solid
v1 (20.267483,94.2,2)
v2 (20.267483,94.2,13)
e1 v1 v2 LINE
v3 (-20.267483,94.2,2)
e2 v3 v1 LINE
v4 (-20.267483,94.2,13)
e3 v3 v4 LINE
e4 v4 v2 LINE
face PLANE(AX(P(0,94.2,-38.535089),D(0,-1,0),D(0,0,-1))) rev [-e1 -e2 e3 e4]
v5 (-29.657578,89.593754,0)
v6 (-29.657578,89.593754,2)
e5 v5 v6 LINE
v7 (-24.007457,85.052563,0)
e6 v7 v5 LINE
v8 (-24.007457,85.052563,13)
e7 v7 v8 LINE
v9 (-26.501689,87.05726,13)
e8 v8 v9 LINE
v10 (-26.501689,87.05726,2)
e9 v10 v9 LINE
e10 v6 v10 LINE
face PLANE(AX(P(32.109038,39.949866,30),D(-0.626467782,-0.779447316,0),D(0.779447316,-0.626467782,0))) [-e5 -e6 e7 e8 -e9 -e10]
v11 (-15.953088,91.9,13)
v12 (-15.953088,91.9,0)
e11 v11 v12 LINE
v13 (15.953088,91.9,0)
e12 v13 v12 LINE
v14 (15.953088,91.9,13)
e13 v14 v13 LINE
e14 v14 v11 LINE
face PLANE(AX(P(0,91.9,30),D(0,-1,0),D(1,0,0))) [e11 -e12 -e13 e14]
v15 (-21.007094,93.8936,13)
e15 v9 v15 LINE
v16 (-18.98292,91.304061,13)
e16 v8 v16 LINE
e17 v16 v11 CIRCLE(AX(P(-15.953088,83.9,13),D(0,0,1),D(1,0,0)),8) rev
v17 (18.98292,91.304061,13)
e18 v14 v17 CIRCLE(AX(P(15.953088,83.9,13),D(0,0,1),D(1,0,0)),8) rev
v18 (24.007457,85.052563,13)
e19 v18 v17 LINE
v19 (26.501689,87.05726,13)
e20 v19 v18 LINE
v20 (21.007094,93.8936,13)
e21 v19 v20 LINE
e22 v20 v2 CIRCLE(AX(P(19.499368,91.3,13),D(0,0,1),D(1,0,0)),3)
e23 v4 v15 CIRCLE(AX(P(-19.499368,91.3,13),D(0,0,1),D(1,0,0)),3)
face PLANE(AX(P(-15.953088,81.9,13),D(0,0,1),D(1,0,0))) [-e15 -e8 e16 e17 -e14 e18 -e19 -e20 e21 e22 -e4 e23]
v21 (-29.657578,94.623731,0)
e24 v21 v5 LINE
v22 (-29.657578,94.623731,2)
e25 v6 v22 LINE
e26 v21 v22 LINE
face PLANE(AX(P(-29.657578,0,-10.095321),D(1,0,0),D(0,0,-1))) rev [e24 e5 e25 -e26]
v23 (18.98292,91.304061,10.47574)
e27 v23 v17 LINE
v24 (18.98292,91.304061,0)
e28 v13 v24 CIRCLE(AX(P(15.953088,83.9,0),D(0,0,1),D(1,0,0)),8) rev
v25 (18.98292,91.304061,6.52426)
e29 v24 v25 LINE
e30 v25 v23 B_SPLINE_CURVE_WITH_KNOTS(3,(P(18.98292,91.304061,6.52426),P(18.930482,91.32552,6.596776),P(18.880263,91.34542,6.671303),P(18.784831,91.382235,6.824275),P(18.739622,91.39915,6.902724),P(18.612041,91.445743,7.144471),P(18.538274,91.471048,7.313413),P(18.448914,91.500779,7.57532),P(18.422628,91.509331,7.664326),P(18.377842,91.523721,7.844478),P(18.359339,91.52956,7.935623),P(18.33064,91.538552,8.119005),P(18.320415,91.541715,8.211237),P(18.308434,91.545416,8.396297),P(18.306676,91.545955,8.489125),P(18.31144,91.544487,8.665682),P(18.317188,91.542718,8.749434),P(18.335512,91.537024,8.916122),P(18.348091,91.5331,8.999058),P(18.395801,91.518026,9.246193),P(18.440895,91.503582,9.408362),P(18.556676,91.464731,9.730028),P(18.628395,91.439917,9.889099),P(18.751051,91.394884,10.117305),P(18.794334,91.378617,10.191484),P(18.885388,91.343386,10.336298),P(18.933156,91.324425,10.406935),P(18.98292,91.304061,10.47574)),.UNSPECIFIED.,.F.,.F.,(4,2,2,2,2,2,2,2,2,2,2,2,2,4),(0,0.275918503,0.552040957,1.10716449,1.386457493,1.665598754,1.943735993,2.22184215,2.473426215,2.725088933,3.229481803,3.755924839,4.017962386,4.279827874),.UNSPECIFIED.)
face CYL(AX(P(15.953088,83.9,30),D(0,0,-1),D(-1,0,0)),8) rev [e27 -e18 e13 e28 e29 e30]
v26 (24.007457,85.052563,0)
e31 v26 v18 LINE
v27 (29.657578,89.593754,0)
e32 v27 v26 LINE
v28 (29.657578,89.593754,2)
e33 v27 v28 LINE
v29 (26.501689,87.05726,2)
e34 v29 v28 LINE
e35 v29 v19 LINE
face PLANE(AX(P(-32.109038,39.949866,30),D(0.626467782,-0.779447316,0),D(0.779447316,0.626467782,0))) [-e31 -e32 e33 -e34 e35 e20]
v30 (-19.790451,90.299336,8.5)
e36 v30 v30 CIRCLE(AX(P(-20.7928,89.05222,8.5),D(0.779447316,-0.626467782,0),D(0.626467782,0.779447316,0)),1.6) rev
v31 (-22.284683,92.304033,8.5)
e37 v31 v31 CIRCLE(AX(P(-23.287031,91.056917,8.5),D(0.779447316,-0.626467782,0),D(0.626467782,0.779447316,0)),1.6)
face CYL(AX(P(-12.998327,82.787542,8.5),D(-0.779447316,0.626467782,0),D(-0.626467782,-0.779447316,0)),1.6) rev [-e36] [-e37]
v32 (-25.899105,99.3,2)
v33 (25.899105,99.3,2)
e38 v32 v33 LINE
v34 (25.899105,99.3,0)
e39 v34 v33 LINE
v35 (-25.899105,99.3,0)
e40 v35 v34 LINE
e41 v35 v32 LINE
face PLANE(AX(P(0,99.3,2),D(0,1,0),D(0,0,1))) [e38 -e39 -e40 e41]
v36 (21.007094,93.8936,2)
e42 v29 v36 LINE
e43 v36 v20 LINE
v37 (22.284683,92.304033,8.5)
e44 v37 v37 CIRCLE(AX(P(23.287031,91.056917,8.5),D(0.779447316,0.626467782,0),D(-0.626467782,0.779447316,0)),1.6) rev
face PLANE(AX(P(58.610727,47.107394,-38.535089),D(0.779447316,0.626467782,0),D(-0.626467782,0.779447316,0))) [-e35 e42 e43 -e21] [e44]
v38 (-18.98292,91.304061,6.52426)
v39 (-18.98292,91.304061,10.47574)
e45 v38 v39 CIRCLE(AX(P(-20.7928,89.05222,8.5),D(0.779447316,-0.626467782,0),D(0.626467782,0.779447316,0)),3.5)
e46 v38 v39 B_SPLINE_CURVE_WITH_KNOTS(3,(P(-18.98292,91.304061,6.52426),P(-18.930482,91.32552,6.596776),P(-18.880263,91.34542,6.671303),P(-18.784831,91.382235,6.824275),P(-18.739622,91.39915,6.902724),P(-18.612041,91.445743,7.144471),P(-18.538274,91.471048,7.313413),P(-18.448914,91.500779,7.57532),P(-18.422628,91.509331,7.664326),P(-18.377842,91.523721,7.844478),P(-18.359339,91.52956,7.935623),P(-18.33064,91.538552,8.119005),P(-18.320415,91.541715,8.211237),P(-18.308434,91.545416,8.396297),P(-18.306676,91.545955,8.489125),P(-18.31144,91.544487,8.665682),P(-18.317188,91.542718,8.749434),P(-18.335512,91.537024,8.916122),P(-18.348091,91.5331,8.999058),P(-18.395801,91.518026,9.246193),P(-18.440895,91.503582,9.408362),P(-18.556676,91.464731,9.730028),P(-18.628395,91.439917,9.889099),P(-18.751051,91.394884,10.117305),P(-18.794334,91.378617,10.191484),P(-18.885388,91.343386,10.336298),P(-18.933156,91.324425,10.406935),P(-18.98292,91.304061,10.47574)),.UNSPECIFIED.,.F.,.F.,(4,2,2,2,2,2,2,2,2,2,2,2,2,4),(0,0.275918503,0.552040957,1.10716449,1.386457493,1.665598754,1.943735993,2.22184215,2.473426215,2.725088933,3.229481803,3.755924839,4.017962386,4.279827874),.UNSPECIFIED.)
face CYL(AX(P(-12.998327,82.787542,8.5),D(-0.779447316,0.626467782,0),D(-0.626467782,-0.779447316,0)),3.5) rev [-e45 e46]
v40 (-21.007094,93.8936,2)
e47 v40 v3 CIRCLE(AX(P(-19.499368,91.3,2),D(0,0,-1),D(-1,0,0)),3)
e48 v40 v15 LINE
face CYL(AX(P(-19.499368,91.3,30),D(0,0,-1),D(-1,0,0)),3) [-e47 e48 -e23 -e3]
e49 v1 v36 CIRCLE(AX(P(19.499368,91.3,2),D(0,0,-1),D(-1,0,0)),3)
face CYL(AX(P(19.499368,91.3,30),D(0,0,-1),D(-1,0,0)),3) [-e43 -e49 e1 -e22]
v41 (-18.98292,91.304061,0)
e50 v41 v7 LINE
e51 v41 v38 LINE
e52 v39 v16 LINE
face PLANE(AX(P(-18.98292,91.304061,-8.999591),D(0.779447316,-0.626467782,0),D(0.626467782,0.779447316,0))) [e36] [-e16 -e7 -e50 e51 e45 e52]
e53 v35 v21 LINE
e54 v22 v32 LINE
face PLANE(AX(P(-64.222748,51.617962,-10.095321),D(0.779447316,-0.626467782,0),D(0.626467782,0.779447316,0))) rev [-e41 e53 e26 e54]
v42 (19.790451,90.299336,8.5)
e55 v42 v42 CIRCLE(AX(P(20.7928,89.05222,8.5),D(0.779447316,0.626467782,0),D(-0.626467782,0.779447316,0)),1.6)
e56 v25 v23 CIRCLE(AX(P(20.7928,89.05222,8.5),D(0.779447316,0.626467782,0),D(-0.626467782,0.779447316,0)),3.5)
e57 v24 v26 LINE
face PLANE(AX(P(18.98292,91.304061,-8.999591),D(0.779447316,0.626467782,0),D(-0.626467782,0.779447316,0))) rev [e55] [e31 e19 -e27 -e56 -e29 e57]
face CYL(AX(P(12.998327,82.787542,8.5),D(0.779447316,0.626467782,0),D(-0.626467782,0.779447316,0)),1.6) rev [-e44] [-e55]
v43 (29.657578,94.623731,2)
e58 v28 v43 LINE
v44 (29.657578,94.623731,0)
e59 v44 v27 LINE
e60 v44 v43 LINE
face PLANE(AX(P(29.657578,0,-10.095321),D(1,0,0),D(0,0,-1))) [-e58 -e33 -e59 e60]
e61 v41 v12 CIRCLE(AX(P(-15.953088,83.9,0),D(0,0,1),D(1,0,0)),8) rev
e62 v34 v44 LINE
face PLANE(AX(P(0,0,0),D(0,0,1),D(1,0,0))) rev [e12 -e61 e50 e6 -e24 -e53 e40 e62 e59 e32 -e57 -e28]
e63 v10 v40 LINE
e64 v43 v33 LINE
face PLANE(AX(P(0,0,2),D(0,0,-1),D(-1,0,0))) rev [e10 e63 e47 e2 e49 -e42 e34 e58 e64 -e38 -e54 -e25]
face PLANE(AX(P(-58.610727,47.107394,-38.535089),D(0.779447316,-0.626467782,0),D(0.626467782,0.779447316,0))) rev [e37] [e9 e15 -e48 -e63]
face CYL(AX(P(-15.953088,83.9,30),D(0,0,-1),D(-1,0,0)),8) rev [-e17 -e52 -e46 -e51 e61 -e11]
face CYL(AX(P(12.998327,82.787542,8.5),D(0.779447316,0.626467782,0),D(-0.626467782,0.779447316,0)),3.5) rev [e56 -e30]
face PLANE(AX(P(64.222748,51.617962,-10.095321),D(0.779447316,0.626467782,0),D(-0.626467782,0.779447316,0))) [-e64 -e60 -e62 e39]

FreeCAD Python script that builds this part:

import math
import FreeCAD as App
import Part
import Sketcher

V = App.Vector
Q = App.Units.Quantity


def edges_at(feature, points):
    """Names of the edges that pass closest to the given points."""
    edges = feature.Shape.Edges
    near = lambda p: min(range(len(edges)), key=lambda i: edges[i].distToShape(Part.Vertex(*p))[0])
    return sorted({f"Edge{near(p) + 1}" for p in points})

doc = App.newDocument("Part")
body = doc.addObject("PartDesign::Body", "Body")

# Sketch on XY plane
sketch1 = body.newObject("Sketcher::SketchObject", "Sketch")
sketch1.AttachmentSupport = (doc.getObject("XY_Plane"), [""])
sketch1.MapMode = "FlatFace"
sketch1.addGeometry([
    Part.LineSegment(V(-20.9, 94.3, 0), V(-26.7, 87.2, 0)),  # 0
    Part.LineSegment(V(-26.7, 87.2, 0), V(-24.8, 85.7, 0)),  # 1
    Part.LineSegment(V(-24.8, 85.7, 0), V(-22.2, 88.9, 0)),  # 2
    Part.ArcOfCircle(Part.Circle(V(-16, 83.9, 0), V(0, 0, 1), 8), math.radians(90), math.radians(141)),  # 3
    Part.LineSegment(V(-16, 91.9, 0), V(16, 91.9, 0)),  # 4
    Part.ArcOfCircle(Part.Circle(V(16, 83.9, 0), V(0, 0, 1), 8), math.radians(39), math.radians(90)),  # 5
    Part.LineSegment(V(22.2, 88.9, 0), V(24.8, 85.7, 0)),  # 6
    Part.LineSegment(V(24.8, 85.7, 0), V(26.7, 87.2, 0)),  # 7
    Part.LineSegment(V(26.7, 87.2, 0), V(20.9, 94.3, 0)),  # 8
    Part.LineSegment(V(20.9, 94.3, 0), V(-20.9, 94.3, 0)),  # 9
], False)
sketch1.addConstraint([
    Sketcher.Constraint("Coincident", 0, 2, 1, 1),
    Sketcher.Constraint("Coincident", 1, 2, 2, 1),
    Sketcher.Constraint("Tangent", 2, 2, 3, 2),
    Sketcher.Constraint("Tangent", 3, 1, 4, 1),
    Sketcher.Constraint("Tangent", 4, 2, 5, 2),
    Sketcher.Constraint("Tangent", 5, 1, 6, 1),
    Sketcher.Constraint("Coincident", 6, 2, 7, 1),
    Sketcher.Constraint("Coincident", 7, 2, 8, 1),
    Sketcher.Constraint("Coincident", 8, 2, 9, 1),
    Sketcher.Constraint("Coincident", 9, 2, 0, 1),
    Sketcher.Constraint("Horizontal", 4),
    Sketcher.Constraint("Horizontal", 9),
    Sketcher.Constraint("Equal", 3, 5),
    Sketcher.Constraint("Symmetric", 2, 2, 5, 1, -2),
    Sketcher.Constraint("Symmetric", 0, 2, 7, 2, -2),
    Sketcher.Constraint("Perpendicular", 0, 1),
    Sketcher.Constraint("Perpendicular", 1, 2),
    Sketcher.Constraint("Perpendicular", 6, 7),
    Sketcher.Constraint("Perpendicular", 7, 8),
    Sketcher.Constraint("Radius", 3, 8.0),
    Sketcher.Constraint("Distance", 1, 2.4),
    Sketcher.Constraint("DistanceY", -1, 1, 3, 3, 83.9),
    Sketcher.Constraint("DistanceY", -1, 1, 8, 2, 94.3),
    Sketcher.Constraint("Angle", 0, Q("-128.79 deg")),
    Sketcher.Constraint("DistanceX", 9, 2, 9, 1, 41.874099),
    Sketcher.Constraint("Distance", 0, 9.131401),
])
pad1 = body.newObject("PartDesign::Pad", "Pad")
pad1.Profile = sketch1
pad1.Length = 30

# Sketch on XY plane
sketch2 = body.newObject("Sketcher::SketchObject", "Sketch001")
sketch2.AttachmentSupport = (doc.getObject("XY_Plane"), [""])
sketch2.MapMode = "FlatFace"
sketch2.addGeometry([
    Part.LineSegment(V(-21, 94, 0), V(-27, 87, 0)),  # 0
    Part.LineSegment(V(-27, 87, 0), V(-27, 95, 0)),  # 1
    Part.LineSegment(V(-27, 95, 0), V(-23, 99, 0)),  # 2
    Part.LineSegment(V(-23, 99, 0), V(23, 99, 0)),  # 3
    Part.LineSegment(V(23, 99, 0), V(27, 95, 0)),  # 4
    Part.LineSegment(V(27, 95, 0), V(27, 87, 0)),  # 5
    Part.LineSegment(V(27, 87, 0), V(21, 94, 0)),  # 6
    Part.LineSegment(V(21, 94, 0), V(-21, 94, 0)),  # 7
], False)
sketch2.addConstraint([
    Sketcher.Constraint("Coincident", 0, 2, 1, 1),
    Sketcher.Constraint("Coincident", 1, 2, 2, 1),
    Sketcher.Constraint("Coincident", 2, 2, 3, 1),
    Sketcher.Constraint("Coincident", 3, 2, 4, 1),
    Sketcher.Constraint("Coincident", 4, 2, 5, 1),
    Sketcher.Constraint("Coincident", 5, 2, 6, 1),
    Sketcher.Constraint("Coincident", 6, 2, 7, 1),
    Sketcher.Constraint("Coincident", 7, 2, 0, 1),
    Sketcher.Constraint("Vertical", 1),
    Sketcher.Constraint("Horizontal", 3),
    Sketcher.Constraint("Vertical", 5),
    Sketcher.Constraint("Horizontal", 7),
    Sketcher.Constraint("Symmetric", 1, 2, 4, 2, -2),
    Sketcher.Constraint("Parallel", 0, 2),
    Sketcher.Constraint("Parallel", 4, 6),
    Sketcher.Constraint("Horizontal", 0, 2, 5, 2),
    Sketcher.Constraint("Equal", 2, 4),
    Sketcher.Constraint("DistanceY", 6, 2, 3, 2, 5.0),
    Sketcher.Constraint("DistanceY", -1, 1, 2, 2, 99.3),
    Sketcher.Constraint("Angle", 0, Q("-128.79 deg")),
    Sketcher.Constraint("DistanceX", 7, 2, 7, 1, 41.874099),
    Sketcher.Constraint("Distance", 0, 9.131401),
    Sketcher.Constraint("DistanceX", 3, 1, 3, 2, 46.666369),
])
pad2 = body.newObject("PartDesign::Pad", "Pad001")
pad2.Profile = sketch2
pad2.Length = 2

# Sketch on XZ plane
sketch3 = body.newObject("Sketcher::SketchObject", "Sketch002")
sketch3.AttachmentSupport = (doc.getObject("XZ_Plane"), [""])
sketch3.MapMode = "FlatFace"
sketch3.AttachmentOffset = App.Placement(V(0, 0, -91.9), App.Rotation())
sketch3.addGeometry([
    Part.LineSegment(V(27, 13, 0), V(27, 30, 0)),
    Part.LineSegment(V(27, 30, 0), V(-27, 30, 0)),
    Part.LineSegment(V(-27, 30, 0), V(-27, 13, 0)),
    Part.LineSegment(V(-27, 13, 0), V(27, 13, 0)),
], False)
sketch3.addConstraint([
    Sketcher.Constraint("Coincident", 0, 2, 1, 1),
    Sketcher.Constraint("Coincident", 1, 2, 2, 1),
    Sketcher.Constraint("Coincident", 2, 2, 3, 1),
    Sketcher.Constraint("Coincident", 3, 2, 0, 1),
    Sketcher.Constraint("Vertical", 0),
    Sketcher.Constraint("Horizontal", 1),
    Sketcher.Constraint("Vertical", 2),
    Sketcher.Constraint("Horizontal", 3),
    Sketcher.Constraint("DistanceY", 0, 1, 0, 2, 17.0),
    Sketcher.Constraint("DistanceY", -1, 1, 0, 2, 30.0),
    Sketcher.Constraint("DistanceX", 1, 2, 1, 1, 53.315156),
    Sketcher.Constraint("DistanceX", -1, 1, 0, 2, 26.657578),
])
pocket1 = body.newObject("PartDesign::Pocket", "Pocket")
pocket1.Profile = sketch3
pocket1.Type = "ThroughAll"
pocket1.Midplane = True

# Sketch on XY plane
sketch4 = body.newObject("Sketcher::SketchObject", "Sketch003")
sketch4.AttachmentSupport = (doc.getObject("XY_Plane"), [""])
sketch4.MapMode = "FlatFace"
sketch4.AttachmentOffset = App.Placement(V(0, 0, 13), App.Rotation())
sketch4.addGeometry([
    Part.LineSegment(V(-19.8, 91.9, 0), V(-24.8, 85.7, 0)),
    Part.LineSegment(V(-24.8, 85.7, 0), V(-24, 85.1, 0)),
    Part.LineSegment(V(-24, 85.1, 0), V(-19, 91.3, 0)),
    Part.LineSegment(V(-19, 91.3, 0), V(-19.8, 91.9, 0)),
], False)
sketch4.addConstraint([
    Sketcher.Constraint("Coincident", 0, 2, 1, 1),
    Sketcher.Constraint("Coincident", 1, 2, 2, 1),
    Sketcher.Constraint("Coincident", 2, 2, 3, 1),
    Sketcher.Constraint("Coincident", 3, 2, 0, 1),
    Sketcher.Constraint("Perpendicular", 0, 1),
    Sketcher.Constraint("Perpendicular", 1, 2),
    Sketcher.Constraint("Perpendicular", 2, 3),
    Sketcher.Constraint("Distance", 1, 1.0),
    Sketcher.Constraint("Angle", 0, Q("-128.79 deg")),
    Sketcher.Constraint("DistanceY", -1, 1, 0, 2, 85.679031),
    Sketcher.Constraint("DistanceX", 2, 2, -1, 1, 18.98292),
    Sketcher.Constraint("DistanceY", -1, 1, 2, 2, 91.304061),
])
pad3 = body.newObject("PartDesign::Pad", "Pad002")
pad3.Profile = sketch4
pad3.Length = 13
pad3.Reversed = True

# Sketch on an angled plane
sketch5 = body.newObject("Sketcher::SketchObject", "Sketch004")
sketch5.Placement = App.Placement(V(-56.116496, 45.102698, 0), App.Rotation(V(0, 0, -1), V(0.626467782, 0.779447316, 0), V(0.779447316, -0.626467782, 0), "ZXY"))
sketch5.addGeometry(Part.Circle(V(-8.5, 56.4, 0), V(0, 0, 1), 1.6), False)
sketch5.addConstraint([
    Sketcher.Constraint("Diameter", 0, 3.2),
    Sketcher.Constraint("DistanceX", 0, 3, -1, 1, 8.5),
    Sketcher.Constraint("DistanceY", -1, 1, 0, 3, 56.385495),
])
pocket2 = body.newObject("PartDesign::Pocket", "Pocket001")
pocket2.Profile = sketch5
pocket2.Length = 20
pocket2.Midplane = True

# Sketch on an angled plane
sketch6 = body.newObject("Sketcher::SketchObject", "Sketch005")
sketch6.Placement = App.Placement(V(-56.116496, 45.102698, 0), App.Rotation(V(0, 0, -1), V(0.626467782, 0.779447316, 0), V(0.779447316, -0.626467782, 0), "ZXY"))
sketch6.addGeometry(Part.Circle(V(-8.5, 56.4, 0), V(0, 0, 1), 3.5), False)
sketch6.addConstraint([
    Sketcher.Constraint("Diameter", 0, 7.0),
    Sketcher.Constraint("DistanceX", 0, 3, -1, 1, 8.5),
    Sketcher.Constraint("DistanceY", -1, 1, 0, 3, 56.385495),
])
pocket3 = body.newObject("PartDesign::Pocket", "Pocket002")
pocket3.Profile = sketch6
pocket3.Length = 10
pocket3.Reversed = True
doc.recompute()

mirrored = body.newObject("PartDesign::Mirrored", "Mirrored")
mirrored.Originals = [pad3, pocket2, pocket3]
mirrored.MirrorPlane = (doc.getObject("YZ_Plane"), [""])
body.Tip = mirrored
doc.recompute()

fillet = body.newObject("PartDesign::Fillet", "Fillet")
fillet.Base = (mirrored, edges_at(mirrored, [(-20.937, 94.3, 7.5), (20.937, 94.3, 7.5)]))
fillet.Radius = 3

# Sketch on XY plane
sketch7 = body.newObject("Sketcher::SketchObject", "Sketch006")
sketch7.AttachmentSupport = (doc.getObject("XY_Plane"), [""])
sketch7.MapMode = "FlatFace"
sketch7.AttachmentOffset = App.Placement(V(0, 0, 13), App.Rotation())
sketch7.addGeometry([
    Part.ArcOfCircle(Part.Circle(V(19.5, 91.3, 0), V(0, 0, 1), 3), math.radians(39), math.radians(60)),  # 0
    Part.LineSegment(V(21.01, 93.89, 0), V(26.5, 87.06, 0)),  # 1
    Part.LineSegment(V(26.5, 87.06, 0), V(26.66, 87.18, 0)),  # 2
    Part.LineSegment(V(26.66, 87.18, 0), V(21.84, 93.18, 0)),  # 3
    Part.LineSegment(V(-26.66, 87.18, 0), V(-26.5, 87.06, 0)),  # 4
    Part.LineSegment(V(-26.5, 87.06, 0), V(-21.01, 93.89, 0)),  # 5
    Part.ArcOfCircle(Part.Circle(V(-19.5, 91.3, 0), V(0, 0, 1), 3), math.radians(120), math.radians(141)),  # 6
    Part.LineSegment(V(-21.84, 93.18, 0), V(-26.66, 87.18, 0)),  # 7
    Part.ArcOfCircle(Part.Circle(V(-19.5, 91.3, 0), V(0, 0, 1), 3), math.radians(90), math.radians(104.84)),  # 8
    Part.LineSegment(V(-20.27, 94.2, 0), V(20.27, 94.2, 0)),  # 9
    Part.ArcOfCircle(Part.Circle(V(19.5, 91.3, 0), V(0, 0, 1), 3), math.radians(75.16), math.radians(90)),  # 10
    Part.LineSegment(V(19.5, 94.3, 0), V(-19.5, 94.3, 0)),  # 11
], False)
sketch7.addConstraint([
    Sketcher.Constraint("Coincident", 0, 2, 1, 1),
    Sketcher.Constraint("Coincident", 1, 2, 2, 1),
    Sketcher.Constraint("Coincident", 2, 2, 3, 1),
    Sketcher.Constraint("Tangent", 3, 2, 0, 1),
    Sketcher.Constraint("Coincident", 4, 2, 5, 1),
    Sketcher.Constraint("Coincident", 5, 2, 6, 1),
    Sketcher.Constraint("Tangent", 6, 2, 7, 1),
    Sketcher.Constraint("Coincident", 7, 2, 4, 1),
    Sketcher.Constraint("Coincident", 8, 2, 9, 1),
    Sketcher.Constraint("Coincident", 9, 2, 10, 1),
    Sketcher.Constraint("Tangent", 10, 2, 11, 1),
    Sketcher.Constraint("Tangent", 11, 2, 8, 1),
    Sketcher.Constraint("Horizontal", 9),
    Sketcher.Constraint("Horizontal", 11),
    Sketcher.Constraint("Coincident", 8, 3, 6, 3),
    Sketcher.Constraint("Coincident", 10, 3, 0, 3),
    Sketcher.Constraint("Equal", 0, 6),
    Sketcher.Constraint("Equal", 6, 8),
    Sketcher.Constraint("Equal", 8, 10),
    Sketcher.Constraint("Symmetric", 1, 2, 4, 2, -2),
    Sketcher.Constraint("Symmetric", 0, 2, 5, 2, -2),
    Sketcher.Constraint("Symmetric", 2, 2, 7, 2, -2),
    Sketcher.Constraint("Perpendicular", 1, 2),
    Sketcher.Constraint("Perpendicular", 2, 3),
    Sketcher.Constraint("Radius", 0, 3.0),
    Sketcher.Constraint("Distance", 2, 0.2),
    Sketcher.Constraint("DistanceY", -1, 1, 0, 3, 91.3),
    Sketcher.Constraint("DistanceY", -1, 1, 8, 2, 94.2),
    Sketcher.Constraint("Angle", 1, Q("-51.21 deg")),
    Sketcher.Constraint("Distance", 3, 7.69372),
    Sketcher.Constraint("DistanceX", 9, 1, 9, 2, 40.534966),
])
pocket4 = body.newObject("PartDesign::Pocket", "Pocket003")
pocket4.Profile = sketch7
pocket4.Length = 11

# Sketch on XY plane
sketch8 = body.newObject("Sketcher::SketchObject", "Sketch007")
sketch8.AttachmentSupport = (doc.getObject("XY_Plane"), [""])
sketch8.MapMode = "FlatFace"
sketch8.AttachmentOffset = App.Placement(V(0, 0, 2), App.Rotation())
sketch8.addGeometry([
    Part.LineSegment(V(-29.7, 89.6, 0), V(-26.7, 87.2, 0)),  # 0
    Part.LineSegment(V(-26.7, 87.2, 0), V(-26.7, 95.2, 0)),  # 1
    Part.LineSegment(V(-26.7, 95.2, 0), V(-23.3, 99.3, 0)),  # 2
    Part.LineSegment(V(-23.3, 99.3, 0), V(-25.9, 99.3, 0)),  # 3
    Part.LineSegment(V(-25.9, 99.3, 0), V(-29.7, 94.6, 0)),  # 4
    Part.LineSegment(V(-29.7, 94.6, 0), V(-29.7, 89.6, 0)),  # 5
    Part.LineSegment(V(23.3, 99.3, 0), V(26.7, 95.2, 0)),  # 6
    Part.LineSegment(V(26.7, 95.2, 0), V(26.7, 87.2, 0)),  # 7
    Part.LineSegment(V(26.7, 87.2, 0), V(29.7, 89.6, 0)),  # 8
    Part.LineSegment(V(29.7, 89.6, 0), V(29.7, 94.6, 0)),  # 9
    Part.LineSegment(V(29.7, 94.6, 0), V(25.9, 99.3, 0)),  # 10
    Part.LineSegment(V(25.9, 99.3, 0), V(23.3, 99.3, 0)),  # 11
], False)
sketch8.addConstraint([
    Sketcher.Constraint("Coincident", 0, 2, 1, 1),
    Sketcher.Constraint("Coincident", 1, 2, 2, 1),
    Sketcher.Constraint("Coincident", 2, 2, 3, 1),
    Sketcher.Constraint("Coincident", 3, 2, 4, 1),
    Sketcher.Constraint("Coincident", 4, 2, 5, 1),
    Sketcher.Constraint("Coincident", 5, 2, 0, 1),
    Sketcher.Constraint("Coincident", 6, 2, 7, 1),
    Sketcher.Constraint("Coincident", 7, 2, 8, 1),
    Sketcher.Constraint("Coincident", 8, 2, 9, 1),
    Sketcher.Constraint("Coincident", 9, 2, 10, 1),
    Sketcher.Constraint("Coincident", 10, 2, 11, 1),
    Sketcher.Constraint("Coincident", 11, 2, 6, 1),
    Sketcher.Constraint("Vertical", 1),
    Sketcher.Constraint("Horizontal", 3),
    Sketcher.Constraint("Vertical", 5),
    Sketcher.Constraint("Vertical", 7),
    Sketcher.Constraint("Vertical", 9),
    Sketcher.Constraint("Horizontal", 11),
    Sketcher.Constraint("Symmetric", 1, 2, 6, 2, -2),
    Sketcher.Constraint("Symmetric", 5, 2, 8, 2, -2),
    Sketcher.Constraint("Symmetric", 3, 2, 10, 2, -2),
    Sketcher.Constraint("Perpendicular", 0, 2),
    Sketcher.Constraint("Parallel", 2, 4),
    Sketcher.Constraint("Perpendicular", 6, 8),
    Sketcher.Constraint("Perpendicular", 8, 10),
    Sketcher.Constraint("Horizontal", 0, 2, 7, 2),
    Sketcher.Constraint("DistanceX", 4, 2, 1, 2, 3.0),
    Sketcher.Constraint("DistanceY", -1, 1, 2, 2, 99.3),
    Sketcher.Constraint("Angle", 0, Q("-38.79 deg")),
    Sketcher.Constraint("DistanceX", 3, 2, 3, 1, 2.565921),
    Sketcher.Constraint("DistanceY", 1, 1, 1, 2, 7.981256),
    Sketcher.Constraint("DistanceX", 0, 2, -1, 1, 26.657578),
    Sketcher.Constraint("DistanceY", -1, 1, 1, 2, 95.16381),
])
pad4 = body.newObject("PartDesign::Pad", "Pad003")
pad4.Profile = sketch8
pad4.Length = 2
pad4.Reversed = True

doc.recompute()
